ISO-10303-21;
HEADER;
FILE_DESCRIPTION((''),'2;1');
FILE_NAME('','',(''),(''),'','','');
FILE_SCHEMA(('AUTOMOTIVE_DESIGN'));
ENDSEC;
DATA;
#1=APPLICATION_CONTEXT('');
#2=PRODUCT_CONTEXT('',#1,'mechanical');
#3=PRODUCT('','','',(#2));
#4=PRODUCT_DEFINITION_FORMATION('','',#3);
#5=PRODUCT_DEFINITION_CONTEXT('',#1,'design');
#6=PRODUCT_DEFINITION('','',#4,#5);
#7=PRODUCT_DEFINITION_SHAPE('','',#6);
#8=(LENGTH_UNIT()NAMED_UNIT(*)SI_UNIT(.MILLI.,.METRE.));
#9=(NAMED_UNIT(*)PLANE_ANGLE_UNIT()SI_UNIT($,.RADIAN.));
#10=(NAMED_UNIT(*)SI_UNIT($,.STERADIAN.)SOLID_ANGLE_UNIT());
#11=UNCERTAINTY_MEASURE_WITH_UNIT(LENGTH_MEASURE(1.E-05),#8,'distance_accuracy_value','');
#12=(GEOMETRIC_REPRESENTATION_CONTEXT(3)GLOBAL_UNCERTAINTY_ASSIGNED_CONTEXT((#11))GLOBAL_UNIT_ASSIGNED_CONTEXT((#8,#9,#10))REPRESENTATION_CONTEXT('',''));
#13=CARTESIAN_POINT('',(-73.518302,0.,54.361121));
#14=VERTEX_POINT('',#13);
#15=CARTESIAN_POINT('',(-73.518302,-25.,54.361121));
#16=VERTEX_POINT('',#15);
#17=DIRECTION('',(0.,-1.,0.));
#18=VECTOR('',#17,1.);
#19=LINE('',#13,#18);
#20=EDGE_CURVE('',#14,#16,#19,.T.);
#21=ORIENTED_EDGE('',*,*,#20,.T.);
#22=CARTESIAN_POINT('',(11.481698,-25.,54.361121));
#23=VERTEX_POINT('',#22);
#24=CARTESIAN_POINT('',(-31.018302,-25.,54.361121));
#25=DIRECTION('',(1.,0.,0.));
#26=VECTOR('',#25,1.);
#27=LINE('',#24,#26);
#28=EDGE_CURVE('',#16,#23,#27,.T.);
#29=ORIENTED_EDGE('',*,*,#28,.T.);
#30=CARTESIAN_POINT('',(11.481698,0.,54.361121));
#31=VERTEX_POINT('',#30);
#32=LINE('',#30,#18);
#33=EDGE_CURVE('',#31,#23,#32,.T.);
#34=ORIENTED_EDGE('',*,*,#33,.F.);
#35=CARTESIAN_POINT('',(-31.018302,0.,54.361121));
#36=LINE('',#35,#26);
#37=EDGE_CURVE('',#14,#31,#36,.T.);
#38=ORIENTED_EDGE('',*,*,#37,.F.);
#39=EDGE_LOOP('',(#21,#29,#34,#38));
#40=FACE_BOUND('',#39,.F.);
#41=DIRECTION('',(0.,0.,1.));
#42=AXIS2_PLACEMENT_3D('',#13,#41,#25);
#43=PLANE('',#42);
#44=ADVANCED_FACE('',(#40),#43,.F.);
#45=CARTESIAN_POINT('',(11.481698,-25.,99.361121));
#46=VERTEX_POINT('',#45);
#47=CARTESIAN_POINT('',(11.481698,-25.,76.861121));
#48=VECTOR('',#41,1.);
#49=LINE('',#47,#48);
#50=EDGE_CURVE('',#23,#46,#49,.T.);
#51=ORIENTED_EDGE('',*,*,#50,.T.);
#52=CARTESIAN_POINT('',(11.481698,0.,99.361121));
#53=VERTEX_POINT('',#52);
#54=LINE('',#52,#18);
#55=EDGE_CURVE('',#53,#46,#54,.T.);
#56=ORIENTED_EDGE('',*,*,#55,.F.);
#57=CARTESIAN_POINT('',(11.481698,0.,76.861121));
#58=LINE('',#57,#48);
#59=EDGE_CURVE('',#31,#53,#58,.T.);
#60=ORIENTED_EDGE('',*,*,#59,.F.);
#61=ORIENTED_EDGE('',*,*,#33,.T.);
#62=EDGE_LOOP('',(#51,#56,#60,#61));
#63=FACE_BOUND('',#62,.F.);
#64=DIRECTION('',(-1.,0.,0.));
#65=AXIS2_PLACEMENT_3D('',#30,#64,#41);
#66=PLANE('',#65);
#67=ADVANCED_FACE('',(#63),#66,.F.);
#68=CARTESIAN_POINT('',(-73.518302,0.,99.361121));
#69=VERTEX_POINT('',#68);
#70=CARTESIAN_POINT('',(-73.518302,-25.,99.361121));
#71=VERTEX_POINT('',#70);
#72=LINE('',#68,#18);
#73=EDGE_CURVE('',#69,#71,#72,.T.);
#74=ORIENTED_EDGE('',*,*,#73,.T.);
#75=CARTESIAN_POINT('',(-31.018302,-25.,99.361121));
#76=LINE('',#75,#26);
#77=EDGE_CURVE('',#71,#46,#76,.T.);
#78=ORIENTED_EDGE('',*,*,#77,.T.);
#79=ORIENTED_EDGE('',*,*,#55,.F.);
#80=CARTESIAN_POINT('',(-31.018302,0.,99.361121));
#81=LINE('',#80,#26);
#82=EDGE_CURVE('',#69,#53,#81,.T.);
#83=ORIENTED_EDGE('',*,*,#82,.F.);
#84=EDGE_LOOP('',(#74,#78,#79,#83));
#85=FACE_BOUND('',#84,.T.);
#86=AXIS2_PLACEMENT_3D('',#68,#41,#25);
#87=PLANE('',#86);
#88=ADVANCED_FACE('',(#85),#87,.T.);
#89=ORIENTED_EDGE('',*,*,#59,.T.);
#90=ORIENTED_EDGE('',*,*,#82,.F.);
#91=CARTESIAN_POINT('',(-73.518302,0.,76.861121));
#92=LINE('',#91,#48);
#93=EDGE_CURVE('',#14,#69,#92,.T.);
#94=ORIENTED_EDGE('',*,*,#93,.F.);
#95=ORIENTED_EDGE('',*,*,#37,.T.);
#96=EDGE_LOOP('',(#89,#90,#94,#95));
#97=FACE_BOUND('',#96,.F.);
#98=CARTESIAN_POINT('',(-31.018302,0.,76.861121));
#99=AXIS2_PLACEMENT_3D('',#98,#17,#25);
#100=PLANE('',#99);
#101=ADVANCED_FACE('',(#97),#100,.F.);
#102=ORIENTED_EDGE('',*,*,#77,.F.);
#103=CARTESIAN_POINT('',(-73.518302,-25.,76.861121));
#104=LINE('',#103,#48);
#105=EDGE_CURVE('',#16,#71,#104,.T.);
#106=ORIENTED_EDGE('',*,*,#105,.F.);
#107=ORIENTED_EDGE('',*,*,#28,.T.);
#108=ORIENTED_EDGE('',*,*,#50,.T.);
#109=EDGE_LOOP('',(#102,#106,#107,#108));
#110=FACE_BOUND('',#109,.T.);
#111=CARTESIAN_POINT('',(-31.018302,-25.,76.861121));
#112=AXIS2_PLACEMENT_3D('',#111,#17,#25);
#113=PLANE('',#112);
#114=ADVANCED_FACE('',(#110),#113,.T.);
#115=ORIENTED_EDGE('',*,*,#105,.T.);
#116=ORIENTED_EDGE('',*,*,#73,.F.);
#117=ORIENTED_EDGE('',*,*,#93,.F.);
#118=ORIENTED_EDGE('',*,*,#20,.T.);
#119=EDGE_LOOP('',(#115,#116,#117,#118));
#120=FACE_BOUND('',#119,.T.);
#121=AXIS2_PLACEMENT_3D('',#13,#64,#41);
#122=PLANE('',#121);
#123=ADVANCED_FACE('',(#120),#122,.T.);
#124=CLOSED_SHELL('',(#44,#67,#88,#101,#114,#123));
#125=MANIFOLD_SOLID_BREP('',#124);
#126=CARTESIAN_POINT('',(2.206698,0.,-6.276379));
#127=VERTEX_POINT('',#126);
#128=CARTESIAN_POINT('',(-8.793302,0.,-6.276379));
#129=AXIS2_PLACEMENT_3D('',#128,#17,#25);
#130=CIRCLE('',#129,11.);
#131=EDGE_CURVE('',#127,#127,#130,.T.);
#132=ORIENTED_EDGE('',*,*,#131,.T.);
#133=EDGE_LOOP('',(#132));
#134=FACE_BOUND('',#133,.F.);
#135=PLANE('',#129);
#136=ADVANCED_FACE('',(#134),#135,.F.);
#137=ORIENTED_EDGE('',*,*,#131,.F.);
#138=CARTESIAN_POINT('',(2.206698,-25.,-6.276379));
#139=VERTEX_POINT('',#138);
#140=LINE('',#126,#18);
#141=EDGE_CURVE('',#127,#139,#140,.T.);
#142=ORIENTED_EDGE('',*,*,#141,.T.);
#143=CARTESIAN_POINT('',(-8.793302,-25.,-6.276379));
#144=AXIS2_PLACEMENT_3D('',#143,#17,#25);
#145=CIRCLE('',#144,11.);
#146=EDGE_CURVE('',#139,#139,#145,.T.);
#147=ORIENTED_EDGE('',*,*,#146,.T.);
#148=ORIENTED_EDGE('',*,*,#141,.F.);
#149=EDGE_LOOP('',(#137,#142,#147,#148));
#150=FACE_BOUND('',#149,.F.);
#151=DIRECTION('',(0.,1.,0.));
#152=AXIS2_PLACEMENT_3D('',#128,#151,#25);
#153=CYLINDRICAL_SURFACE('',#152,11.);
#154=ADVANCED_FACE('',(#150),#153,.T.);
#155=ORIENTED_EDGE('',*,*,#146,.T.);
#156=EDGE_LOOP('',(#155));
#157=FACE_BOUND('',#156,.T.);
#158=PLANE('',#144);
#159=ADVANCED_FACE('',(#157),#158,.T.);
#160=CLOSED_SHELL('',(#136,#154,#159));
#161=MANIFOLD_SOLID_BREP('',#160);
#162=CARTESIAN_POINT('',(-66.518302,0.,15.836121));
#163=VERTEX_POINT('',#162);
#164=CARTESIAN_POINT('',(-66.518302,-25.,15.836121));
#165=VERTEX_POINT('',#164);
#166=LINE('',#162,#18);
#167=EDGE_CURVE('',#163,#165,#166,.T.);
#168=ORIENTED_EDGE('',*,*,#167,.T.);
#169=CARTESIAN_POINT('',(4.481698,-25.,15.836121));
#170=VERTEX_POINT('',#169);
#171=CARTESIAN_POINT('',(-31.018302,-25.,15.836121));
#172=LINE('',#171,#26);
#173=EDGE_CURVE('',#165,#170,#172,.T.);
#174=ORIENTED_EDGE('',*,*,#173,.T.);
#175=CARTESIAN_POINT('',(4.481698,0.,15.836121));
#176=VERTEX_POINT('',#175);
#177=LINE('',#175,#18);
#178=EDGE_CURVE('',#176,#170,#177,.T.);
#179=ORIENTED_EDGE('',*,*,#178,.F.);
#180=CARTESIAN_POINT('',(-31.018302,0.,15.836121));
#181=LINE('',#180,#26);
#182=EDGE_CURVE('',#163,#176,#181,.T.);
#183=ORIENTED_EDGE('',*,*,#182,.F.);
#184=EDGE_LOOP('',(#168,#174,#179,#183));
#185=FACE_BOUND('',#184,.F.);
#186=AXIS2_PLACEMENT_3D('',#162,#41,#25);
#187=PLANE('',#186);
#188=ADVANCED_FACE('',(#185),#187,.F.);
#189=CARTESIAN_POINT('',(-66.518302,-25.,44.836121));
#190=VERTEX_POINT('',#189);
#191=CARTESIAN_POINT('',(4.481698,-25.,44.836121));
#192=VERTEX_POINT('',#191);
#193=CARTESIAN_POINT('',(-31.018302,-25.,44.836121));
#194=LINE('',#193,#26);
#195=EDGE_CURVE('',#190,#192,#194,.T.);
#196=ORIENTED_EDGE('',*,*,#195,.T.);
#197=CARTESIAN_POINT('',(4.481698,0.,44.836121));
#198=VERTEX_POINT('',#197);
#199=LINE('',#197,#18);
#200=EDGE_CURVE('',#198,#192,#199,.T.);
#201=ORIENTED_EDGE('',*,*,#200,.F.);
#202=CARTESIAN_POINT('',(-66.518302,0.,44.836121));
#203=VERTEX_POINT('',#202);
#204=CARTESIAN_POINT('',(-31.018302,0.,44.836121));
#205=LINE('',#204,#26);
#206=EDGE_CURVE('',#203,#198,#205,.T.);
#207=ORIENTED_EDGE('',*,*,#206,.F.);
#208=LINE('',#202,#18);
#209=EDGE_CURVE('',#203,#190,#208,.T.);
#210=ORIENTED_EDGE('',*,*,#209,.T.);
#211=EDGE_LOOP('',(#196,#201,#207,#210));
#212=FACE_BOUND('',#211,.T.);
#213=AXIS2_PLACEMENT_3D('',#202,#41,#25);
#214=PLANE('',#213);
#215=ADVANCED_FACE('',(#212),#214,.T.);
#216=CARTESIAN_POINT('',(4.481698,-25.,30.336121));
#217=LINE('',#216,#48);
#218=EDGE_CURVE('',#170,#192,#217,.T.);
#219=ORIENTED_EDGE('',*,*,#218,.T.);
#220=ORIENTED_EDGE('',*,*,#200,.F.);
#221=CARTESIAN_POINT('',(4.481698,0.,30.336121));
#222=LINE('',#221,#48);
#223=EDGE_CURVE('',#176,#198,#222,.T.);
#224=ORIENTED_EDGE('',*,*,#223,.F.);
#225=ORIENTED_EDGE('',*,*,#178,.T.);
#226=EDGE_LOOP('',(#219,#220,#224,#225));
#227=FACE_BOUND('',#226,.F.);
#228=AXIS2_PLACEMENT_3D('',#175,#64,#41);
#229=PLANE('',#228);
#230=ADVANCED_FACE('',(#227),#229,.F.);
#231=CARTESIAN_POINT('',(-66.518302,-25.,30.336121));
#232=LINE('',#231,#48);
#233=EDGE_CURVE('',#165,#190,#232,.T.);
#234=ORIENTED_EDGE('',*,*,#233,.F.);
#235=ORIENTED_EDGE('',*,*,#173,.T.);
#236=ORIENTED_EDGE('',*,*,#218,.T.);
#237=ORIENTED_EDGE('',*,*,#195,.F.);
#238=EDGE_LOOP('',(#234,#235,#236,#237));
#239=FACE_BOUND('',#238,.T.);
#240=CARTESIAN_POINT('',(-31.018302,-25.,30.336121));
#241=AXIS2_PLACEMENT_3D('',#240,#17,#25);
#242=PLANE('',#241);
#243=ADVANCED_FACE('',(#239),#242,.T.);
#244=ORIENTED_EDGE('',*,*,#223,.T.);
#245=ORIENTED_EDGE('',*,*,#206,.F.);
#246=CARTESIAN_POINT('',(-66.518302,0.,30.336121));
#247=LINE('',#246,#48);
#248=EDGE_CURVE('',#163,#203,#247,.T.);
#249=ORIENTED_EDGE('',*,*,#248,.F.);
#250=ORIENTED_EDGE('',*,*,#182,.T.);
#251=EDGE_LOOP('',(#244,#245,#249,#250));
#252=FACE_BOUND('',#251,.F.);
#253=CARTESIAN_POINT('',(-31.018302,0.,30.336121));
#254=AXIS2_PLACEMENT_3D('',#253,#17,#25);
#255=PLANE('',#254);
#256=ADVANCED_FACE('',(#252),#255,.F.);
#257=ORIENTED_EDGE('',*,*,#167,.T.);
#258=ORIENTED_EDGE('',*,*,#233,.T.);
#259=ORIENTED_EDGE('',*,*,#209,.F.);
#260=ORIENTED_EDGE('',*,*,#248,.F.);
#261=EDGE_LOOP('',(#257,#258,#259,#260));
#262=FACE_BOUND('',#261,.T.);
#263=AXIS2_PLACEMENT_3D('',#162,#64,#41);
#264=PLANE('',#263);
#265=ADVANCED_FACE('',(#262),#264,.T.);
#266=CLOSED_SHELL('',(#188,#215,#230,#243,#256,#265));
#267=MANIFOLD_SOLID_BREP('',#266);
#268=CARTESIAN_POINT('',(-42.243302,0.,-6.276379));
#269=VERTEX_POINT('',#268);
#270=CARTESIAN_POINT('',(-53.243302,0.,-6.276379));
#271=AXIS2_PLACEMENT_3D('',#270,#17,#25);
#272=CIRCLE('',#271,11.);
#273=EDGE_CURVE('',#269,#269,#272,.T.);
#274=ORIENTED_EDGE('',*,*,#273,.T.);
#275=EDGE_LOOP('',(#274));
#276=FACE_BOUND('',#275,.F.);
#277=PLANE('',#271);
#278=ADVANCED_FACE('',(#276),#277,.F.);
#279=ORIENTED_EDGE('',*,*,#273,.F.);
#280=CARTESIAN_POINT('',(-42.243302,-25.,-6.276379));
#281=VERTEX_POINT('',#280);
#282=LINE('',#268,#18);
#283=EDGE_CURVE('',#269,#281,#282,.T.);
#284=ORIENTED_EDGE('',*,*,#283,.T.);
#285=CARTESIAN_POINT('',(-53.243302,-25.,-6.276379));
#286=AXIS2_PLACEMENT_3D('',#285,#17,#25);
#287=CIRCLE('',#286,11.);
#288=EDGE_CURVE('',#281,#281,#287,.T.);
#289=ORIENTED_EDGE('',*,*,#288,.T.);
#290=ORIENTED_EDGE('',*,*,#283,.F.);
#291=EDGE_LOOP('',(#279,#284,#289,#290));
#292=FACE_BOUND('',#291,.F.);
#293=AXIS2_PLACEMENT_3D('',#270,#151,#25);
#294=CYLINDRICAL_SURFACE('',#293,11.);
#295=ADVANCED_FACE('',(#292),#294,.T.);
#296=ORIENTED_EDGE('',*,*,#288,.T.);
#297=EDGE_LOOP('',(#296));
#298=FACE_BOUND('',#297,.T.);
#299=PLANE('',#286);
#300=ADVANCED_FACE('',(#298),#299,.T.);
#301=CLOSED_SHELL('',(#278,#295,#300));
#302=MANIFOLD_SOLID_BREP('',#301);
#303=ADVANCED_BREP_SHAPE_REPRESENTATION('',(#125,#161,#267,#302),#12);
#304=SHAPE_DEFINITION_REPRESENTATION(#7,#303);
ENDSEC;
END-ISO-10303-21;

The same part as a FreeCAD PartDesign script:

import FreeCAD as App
import Part
import Sketcher
from FreeCAD import Vector


def add_polygon(sketch, points):
    """Adds a closed chain of lines whose ends are joined by coincident constraints."""
    first, n = sketch.GeometryCount, len(points)
    for a, b in zip(points, points[1:] + points[:1]):
        sketch.addGeometry(Part.LineSegment(App.Vector(*a, 0), App.Vector(*b, 0)), False)
    for i in range(n):
        sketch.addConstraint(Sketcher.Constraint("Coincident", first + i, 2, first + (i + 1) % n, 1))

doc = App.newDocument("Part")
body = doc.addObject("PartDesign::Body", "Body")
body.AllowCompound = True

# Sketch on XZ plane
sketch1 = doc.addObject("Sketcher::SketchObject", "Sketch")
body.addObject(sketch1)
sketch1.AttachmentSupport = (doc.XZ_Plane, [""])
sketch1.MapMode = "FlatFace"
add_polygon(sketch1, [(-74, 99), (-74, 54), (11, 54), (11, 99)])  # lines 0-3
add_polygon(sketch1, [(-67, 45), (-67, 16), (4, 16), (4, 45)])  # lines 4-7
sketch1.addGeometry(Part.Circle(Vector(-53, -6, 0), Vector(0, 0, 1), 11), False)  # 8
sketch1.addGeometry(Part.Circle(Vector(-9, -6, 0), Vector(0, 0, 1), 11), False)  # 9
sketch1.addConstraint([
    Sketcher.Constraint("Vertical", 0),
    Sketcher.Constraint("Horizontal", 1),
    Sketcher.Constraint("Vertical", 2),
    Sketcher.Constraint("Horizontal", 3),
    Sketcher.Constraint("Vertical", 4),
    Sketcher.Constraint("Horizontal", 5),
    Sketcher.Constraint("Vertical", 6),
    Sketcher.Constraint("Horizontal", 7),
    Sketcher.Constraint("Equal", 8, 9),
    Sketcher.Constraint("Horizontal", 8, 3, 9, 3),
    Sketcher.Constraint("Diameter", 8, 22.0),
    Sketcher.Constraint("DistanceX", 1, 1, 1, 2, 85.0),
    Sketcher.Constraint("DistanceX", 5, 1, 5, 2, 71.0),
    Sketcher.Constraint("DistanceY", 0, 2, 0, 1, 45.0),
    Sketcher.Constraint("DistanceY", 4, 2, 4, 1, 29.0),
    Sketcher.Constraint("DistanceX", 0, 2, 4, 2, 7.0),
    Sketcher.Constraint("DistanceX", 8, 3, 9, 3, 44.45),
    Sketcher.Constraint("DistanceX", 0, 2, 8, 3, 20.275),
    Sketcher.Constraint("DistanceY", 4, 2, 0, 2, 38.525),
    Sketcher.Constraint("DistanceY", 8, 3, 0, 2, 60.6375),
    Sketcher.Constraint("DistanceY", 8, 3, -1, 1, 6.276379),
    Sketcher.Constraint("DistanceX", 8, 3, -1, 1, 53.243302),
])
pad1 = doc.addObject("PartDesign::Pad", "Pad")
body.addObject(pad1)
pad1.Profile = sketch1
pad1.Length = 25

doc.recompute()
